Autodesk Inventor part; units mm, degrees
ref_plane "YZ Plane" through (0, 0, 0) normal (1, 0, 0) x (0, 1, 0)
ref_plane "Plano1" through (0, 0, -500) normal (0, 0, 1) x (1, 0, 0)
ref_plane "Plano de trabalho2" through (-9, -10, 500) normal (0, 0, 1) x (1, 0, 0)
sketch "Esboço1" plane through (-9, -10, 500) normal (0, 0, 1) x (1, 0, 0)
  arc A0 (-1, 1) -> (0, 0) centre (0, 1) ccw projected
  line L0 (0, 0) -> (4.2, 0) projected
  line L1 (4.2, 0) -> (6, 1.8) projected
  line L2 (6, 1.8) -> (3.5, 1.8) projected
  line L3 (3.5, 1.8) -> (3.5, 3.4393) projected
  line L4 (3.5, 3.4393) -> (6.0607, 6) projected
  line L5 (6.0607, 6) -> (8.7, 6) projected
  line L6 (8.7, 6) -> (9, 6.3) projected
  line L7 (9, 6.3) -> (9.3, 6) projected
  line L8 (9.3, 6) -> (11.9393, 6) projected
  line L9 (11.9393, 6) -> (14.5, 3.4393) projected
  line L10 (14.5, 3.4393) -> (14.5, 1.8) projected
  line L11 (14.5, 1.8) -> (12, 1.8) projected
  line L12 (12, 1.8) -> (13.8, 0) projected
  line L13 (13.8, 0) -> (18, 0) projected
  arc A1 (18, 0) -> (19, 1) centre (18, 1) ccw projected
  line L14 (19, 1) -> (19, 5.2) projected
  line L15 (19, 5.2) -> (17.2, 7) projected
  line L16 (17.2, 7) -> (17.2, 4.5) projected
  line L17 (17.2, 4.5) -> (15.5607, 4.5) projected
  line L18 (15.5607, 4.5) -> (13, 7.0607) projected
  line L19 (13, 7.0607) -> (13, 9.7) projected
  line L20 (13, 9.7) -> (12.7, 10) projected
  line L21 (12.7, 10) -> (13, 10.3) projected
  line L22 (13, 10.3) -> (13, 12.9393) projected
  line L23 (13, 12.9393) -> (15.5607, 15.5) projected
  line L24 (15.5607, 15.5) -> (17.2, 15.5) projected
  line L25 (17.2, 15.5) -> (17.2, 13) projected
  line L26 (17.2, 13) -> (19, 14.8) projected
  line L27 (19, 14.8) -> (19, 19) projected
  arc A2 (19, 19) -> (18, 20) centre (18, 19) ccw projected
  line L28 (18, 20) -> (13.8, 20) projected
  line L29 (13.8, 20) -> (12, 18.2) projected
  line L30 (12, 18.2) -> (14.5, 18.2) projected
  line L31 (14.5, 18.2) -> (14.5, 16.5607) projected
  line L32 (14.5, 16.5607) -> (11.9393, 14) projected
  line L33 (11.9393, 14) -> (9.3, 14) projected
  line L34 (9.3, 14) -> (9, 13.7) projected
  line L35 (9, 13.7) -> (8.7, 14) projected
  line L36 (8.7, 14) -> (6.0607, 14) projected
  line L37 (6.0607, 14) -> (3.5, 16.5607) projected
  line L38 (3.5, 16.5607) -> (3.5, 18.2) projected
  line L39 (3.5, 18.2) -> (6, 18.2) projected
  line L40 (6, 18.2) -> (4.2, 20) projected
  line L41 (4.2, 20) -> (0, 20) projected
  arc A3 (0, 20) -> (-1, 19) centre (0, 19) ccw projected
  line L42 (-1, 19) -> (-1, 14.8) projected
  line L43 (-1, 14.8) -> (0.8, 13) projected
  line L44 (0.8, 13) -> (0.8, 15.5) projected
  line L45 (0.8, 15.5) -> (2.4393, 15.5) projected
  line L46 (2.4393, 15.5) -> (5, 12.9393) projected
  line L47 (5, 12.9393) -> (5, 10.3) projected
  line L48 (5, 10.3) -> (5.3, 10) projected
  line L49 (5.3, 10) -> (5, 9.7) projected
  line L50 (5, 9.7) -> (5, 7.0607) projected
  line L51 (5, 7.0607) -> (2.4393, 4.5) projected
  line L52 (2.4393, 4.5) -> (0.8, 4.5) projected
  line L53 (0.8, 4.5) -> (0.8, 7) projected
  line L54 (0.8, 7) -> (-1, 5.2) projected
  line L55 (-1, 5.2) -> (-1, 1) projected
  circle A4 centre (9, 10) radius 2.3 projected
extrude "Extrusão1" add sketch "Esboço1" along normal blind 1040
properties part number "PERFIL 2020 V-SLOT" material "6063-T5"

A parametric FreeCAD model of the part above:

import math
import FreeCAD as App
import Part
import Sketcher
from FreeCAD import Vector
Q = App.Units.Quantity

doc = App.newDocument("Part")
params = doc.addObject("Spreadsheet::Sheet", "Params")
for row, (alias, value) in enumerate([
    ("sketch1_radius", "1 mm"),
    ("sketch1_diameter", "4.6 mm"),
    ("sketch1_width", "4.2 mm"),
    ("sketch1_width2", "2.5 mm"),
    ("pad1_length", "1040 mm"),
], start=1):
    params.set(f"A{row}", alias)
    params.set(f"B{row}", "=" + value)
    params.setAlias(f"B{row}", alias)

body = doc.addObject("PartDesign::Body", "Body")

# Sketch on XY plane
sketch1 = body.newObject("Sketcher::SketchObject", "Sketch")
sketch1.AttachmentSupport = (doc.getObject("XY_Plane"), [""])
sketch1.MapMode = "FlatFace"
sketch1.AttachmentOffset = App.Placement(Vector(0, 0, 500), App.Rotation())
sketch1.addGeometry([
    Part.LineSegment(Vector(-10, -4.8, 0), Vector(-10, -9, 0)),  # 0
    Part.ArcOfCircle(Part.Circle(Vector(-9, -9, 0), Vector(0, 0, 1), 1), math.radians(180), math.radians(270)),  # 1
    Part.LineSegment(Vector(-9, -10, 0), Vector(-4.8, -10, 0)),  # 2
    Part.LineSegment(Vector(-4.8, -10, 0), Vector(-3, -8.2, 0)),  # 3
    Part.LineSegment(Vector(-3, -8.2, 0), Vector(-5.5, -8.2, 0)),  # 4
    Part.LineSegment(Vector(-5.5, -8.2, 0), Vector(-5.5, -6.5607, 0)),  # 5
    Part.LineSegment(Vector(-5.5, -6.5607, 0), Vector(-2.9393, -4, 0)),  # 6
    Part.LineSegment(Vector(-2.9393, -4, 0), Vector(-0.3, -4, 0)),  # 7
    Part.LineSegment(Vector(-0.3, -4, 0), Vector(0, -3.7, 0)),  # 8
    Part.LineSegment(Vector(0, -3.7, 0), Vector(0.3, -4, 0)),  # 9
    Part.LineSegment(Vector(0.3, -4, 0), Vector(2.9393, -4, 0)),  # 10
    Part.LineSegment(Vector(2.9393, -4, 0), Vector(5.5, -6.5607, 0)),  # 11
    Part.LineSegment(Vector(5.5, -6.5607, 0), Vector(5.5, -8.2, 0)),  # 12
    Part.LineSegment(Vector(5.5, -8.2, 0), Vector(3, -8.2, 0)),  # 13
    Part.LineSegment(Vector(3, -8.2, 0), Vector(4.8, -10, 0)),  # 14
    Part.LineSegment(Vector(4.8, -10, 0), Vector(9, -10, 0)),  # 15
    Part.ArcOfCircle(Part.Circle(Vector(9, -9, 0), Vector(0, 0, 1), 1), math.radians(-90), math.radians(0)),  # 16
    Part.LineSegment(Vector(10, -9, 0), Vector(10, -4.8, 0)),  # 17
    Part.LineSegment(Vector(10, -4.8, 0), Vector(8.2, -3, 0)),  # 18
    Part.LineSegment(Vector(8.2, -3, 0), Vector(8.2, -5.5, 0)),  # 19
    Part.LineSegment(Vector(8.2, -5.5, 0), Vector(6.5607, -5.5, 0)),  # 20
    Part.LineSegment(Vector(6.5607, -5.5, 0), Vector(4, -2.9393, 0)),  # 21
    Part.LineSegment(Vector(4, -2.9393, 0), Vector(4, -0.3, 0)),  # 22
    Part.LineSegment(Vector(4, -0.3, 0), Vector(3.7, 0, 0)),  # 23
    Part.LineSegment(Vector(3.7, 0, 0), Vector(4, 0.3, 0)),  # 24
    Part.LineSegment(Vector(4, 0.3, 0), Vector(4, 2.9393, 0)),  # 25
    Part.LineSegment(Vector(4, 2.9393, 0), Vector(6.5607, 5.5, 0)),  # 26
    Part.LineSegment(Vector(6.5607, 5.5, 0), Vector(8.2, 5.5, 0)),  # 27
    Part.LineSegment(Vector(8.2, 5.5, 0), Vector(8.2, 3, 0)),  # 28
    Part.LineSegment(Vector(8.2, 3, 0), Vector(10, 4.8, 0)),  # 29
    Part.LineSegment(Vector(10, 4.8, 0), Vector(10, 9, 0)),  # 30
    Part.ArcOfCircle(Part.Circle(Vector(9, 9, 0), Vector(0, 0, 1), 1), math.radians(0), math.radians(90)),  # 31
    Part.LineSegment(Vector(9, 10, 0), Vector(4.8, 10, 0)),  # 32
    Part.LineSegment(Vector(4.8, 10, 0), Vector(3, 8.2, 0)),  # 33
    Part.LineSegment(Vector(3, 8.2, 0), Vector(5.5, 8.2, 0)),  # 34
    Part.LineSegment(Vector(5.5, 8.2, 0), Vector(5.5, 6.5607, 0)),  # 35
    Part.LineSegment(Vector(5.5, 6.5607, 0), Vector(2.9393, 4, 0)),  # 36
    Part.LineSegment(Vector(2.9393, 4, 0), Vector(0.3, 4, 0)),  # 37
    Part.LineSegment(Vector(0.3, 4, 0), Vector(0, 3.7, 0)),  # 38
    Part.LineSegment(Vector(0, 3.7, 0), Vector(-0.3, 4, 0)),  # 39
    Part.LineSegment(Vector(-0.3, 4, 0), Vector(-2.9393, 4, 0)),  # 40
    Part.LineSegment(Vector(-2.9393, 4, 0), Vector(-5.5, 6.5607, 0)),  # 41
    Part.LineSegment(Vector(-5.5, 6.5607, 0), Vector(-5.5, 8.2, 0)),  # 42
    Part.LineSegment(Vector(-5.5, 8.2, 0), Vector(-3, 8.2, 0)),  # 43
    Part.LineSegment(Vector(-3, 8.2, 0), Vector(-4.8, 10, 0)),  # 44
    Part.LineSegment(Vector(-4.8, 10, 0), Vector(-9, 10, 0)),  # 45
    Part.ArcOfCircle(Part.Circle(Vector(-9, 9, 0), Vector(0, 0, 1), 1), math.radians(90), math.radians(180)),  # 46
    Part.LineSegment(Vector(-10, 9, 0), Vector(-10, 4.8, 0)),  # 47
    Part.LineSegment(Vector(-10, 4.8, 0), Vector(-8.2, 3, 0)),  # 48
    Part.LineSegment(Vector(-8.2, 3, 0), Vector(-8.2, 5.5, 0)),  # 49
    Part.LineSegment(Vector(-8.2, 5.5, 0), Vector(-6.5607, 5.5, 0)),  # 50
    Part.LineSegment(Vector(-6.5607, 5.5, 0), Vector(-4, 2.9393, 0)),  # 51
    Part.LineSegment(Vector(-4, 2.9393, 0), Vector(-4, 0.3, 0)),  # 52
    Part.LineSegment(Vector(-4, 0.3, 0), Vector(-3.7, 0, 0)),  # 53
    Part.LineSegment(Vector(-3.7, 0, 0), Vector(-4, -0.3, 0)),  # 54
    Part.LineSegment(Vector(-4, -0.3, 0), Vector(-4, -2.9393, 0)),  # 55
    Part.LineSegment(Vector(-4, -2.9393, 0), Vector(-6.5607, -5.5, 0)),  # 56
    Part.LineSegment(Vector(-6.5607, -5.5, 0), Vector(-8.2, -5.5, 0)),  # 57
    Part.LineSegment(Vector(-8.2, -5.5, 0), Vector(-8.2, -3, 0)),  # 58
    Part.LineSegment(Vector(-8.2, -3, 0), Vector(-10, -4.8, 0)),  # 59
    Part.Circle(Vector(0, 0, 0), Vector(0, 0, 1), 2.3),  # 60
], False)
sketch1.addConstraint([
    Sketcher.Constraint("Tangent", 0, 2, 1, 1),
    Sketcher.Constraint("Tangent", 1, 2, 2, 1),
    Sketcher.Constraint("Coincident", 2, 2, 3, 1),
    Sketcher.Constraint("Coincident", 3, 2, 4, 1),
    Sketcher.Constraint("Coincident", 4, 2, 5, 1),
    Sketcher.Constraint("Coincident", 5, 2, 6, 1),
    Sketcher.Constraint("Coincident", 6, 2, 7, 1),
    Sketcher.Constraint("Coincident", 7, 2, 8, 1),
    Sketcher.Constraint("Coincident", 8, 2, 9, 1),
    Sketcher.Constraint("Coincident", 9, 2, 10, 1),
    Sketcher.Constraint("Coincident", 10, 2, 11, 1),
    Sketcher.Constraint("Coincident", 11, 2, 12, 1),
    Sketcher.Constraint("Coincident", 12, 2, 13, 1),
    Sketcher.Constraint("Coincident", 13, 2, 14, 1),
    Sketcher.Constraint("Coincident", 14, 2, 15, 1),
    Sketcher.Constraint("Tangent", 15, 2, 16, 1),
    Sketcher.Constraint("Tangent", 16, 2, 17, 1),
    Sketcher.Constraint("Coincident", 17, 2, 18, 1),
    Sketcher.Constraint("Coincident", 18, 2, 19, 1),
    Sketcher.Constraint("Coincident", 19, 2, 20, 1),
    Sketcher.Constraint("Coincident", 20, 2, 21, 1),
    Sketcher.Constraint("Coincident", 21, 2, 22, 1),
    Sketcher.Constraint("Coincident", 22, 2, 23, 1),
    Sketcher.Constraint("Coincident", 23, 2, 24, 1),
    Sketcher.Constraint("Coincident", 24, 2, 25, 1),
    Sketcher.Constraint("Coincident", 25, 2, 26, 1),
    Sketcher.Constraint("Coincident", 26, 2, 27, 1),
    Sketcher.Constraint("Coincident", 27, 2, 28, 1),
    Sketcher.Constraint("Coincident", 28, 2, 29, 1),
    Sketcher.Constraint("Coincident", 29, 2, 30, 1),
    Sketcher.Constraint("Tangent", 30, 2, 31, 1),
    Sketcher.Constraint("Tangent", 31, 2, 32, 1),
    Sketcher.Constraint("Coincident", 32, 2, 33, 1),
    Sketcher.Constraint("Coincident", 33, 2, 34, 1),
    Sketcher.Constraint("Coincident", 34, 2, 35, 1),
    Sketcher.Constraint("Coincident", 35, 2, 36, 1),
    Sketcher.Constraint("Coincident", 36, 2, 37, 1),
    Sketcher.Constraint("Coincident", 37, 2, 38, 1),
    Sketcher.Constraint("Coincident", 38, 2, 39, 1),
    Sketcher.Constraint("Coincident", 39, 2, 40, 1),
    Sketcher.Constraint("Coincident", 40, 2, 41, 1),
    Sketcher.Constraint("Coincident", 41, 2, 42, 1),
    Sketcher.Constraint("Coincident", 42, 2, 43, 1),
    Sketcher.Constraint("Coincident", 43, 2, 44, 1),
    Sketcher.Constraint("Coincident", 44, 2, 45, 1),
    Sketcher.Constraint("Tangent", 45, 2, 46, 1),
    Sketcher.Constraint("Tangent", 46, 2, 47, 1),
    Sketcher.Constraint("Coincident", 47, 2, 48, 1),
    Sketcher.Constraint("Coincident", 48, 2, 49, 1),
    Sketcher.Constraint("Coincident", 49, 2, 50, 1),
    Sketcher.Constraint("Coincident", 50, 2, 51, 1),
    Sketcher.Constraint("Coincident", 51, 2, 52, 1),
    Sketcher.Constraint("Coincident", 52, 2, 53, 1),
    Sketcher.Constraint("Coincident", 53, 2, 54, 1),
    Sketcher.Constraint("Coincident", 54, 2, 55, 1),
    Sketcher.Constraint("Coincident", 55, 2, 56, 1),
    Sketcher.Constraint("Coincident", 56, 2, 57, 1),
    Sketcher.Constraint("Coincident", 57, 2, 58, 1),
    Sketcher.Constraint("Coincident", 58, 2, 59, 1),
    Sketcher.Constraint("Coincident", 59, 2, 0, 1),
    Sketcher.Constraint("Vertical", 0),
    Sketcher.Constraint("Horizontal", 2),
    Sketcher.Constraint("Horizontal", 4),
    Sketcher.Constraint("Vertical", 5),
    Sketcher.Constraint("Horizontal", 7),
    Sketcher.Constraint("Horizontal", 10),
    Sketcher.Constraint("Vertical", 12),
    Sketcher.Constraint("Horizontal", 13),
    Sketcher.Constraint("Horizontal", 15),
    Sketcher.Constraint("Vertical", 17),
    Sketcher.Constraint("Vertical", 19),
    Sketcher.Constraint("Horizontal", 20),
    Sketcher.Constraint("Vertical", 22),
    Sketcher.Constraint("Vertical", 25),
    Sketcher.Constraint("Horizontal", 27),
    Sketcher.Constraint("Vertical", 28),
    Sketcher.Constraint("Vertical", 30),
    Sketcher.Constraint("Horizontal", 32),
    Sketcher.Constraint("Horizontal", 34),
    Sketcher.Constraint("Vertical", 35),
    Sketcher.Constraint("Horizontal", 37),
    Sketcher.Constraint("Horizontal", 40),
    Sketcher.Constraint("Vertical", 42),
    Sketcher.Constraint("Horizontal", 43),
    Sketcher.Constraint("Horizontal", 45),
    Sketcher.Constraint("Vertical", 47),
    Sketcher.Constraint("Vertical", 49),
    Sketcher.Constraint("Horizontal", 50),
    Sketcher.Constraint("Vertical", 52),
    Sketcher.Constraint("Vertical", 55),
    Sketcher.Constraint("Horizontal", 57),
    Sketcher.Constraint("Vertical", 58),
    Sketcher.Constraint("Coincident", 60, 3, -1, 1),
    Sketcher.Constraint("Equal", 1, 16),
    Sketcher.Constraint("Equal", 16, 31),
    Sketcher.Constraint("Equal", 31, 46),
    Sketcher.Constraint("Symmetric", 1, 3, 31, 3, -1, 1),
    Sketcher.Constraint("Symmetric", 16, 3, 46, 3, -1, 1),
    Sketcher.Constraint("Symmetric", 3, 2, 33, 2, -1, 1),
    Sketcher.Constraint("Symmetric", 5, 2, 35, 2, -1, 1),
    Sketcher.Constraint("Symmetric", 6, 2, 36, 2, -1, 1),
    Sketcher.Constraint("Symmetric", 8, 2, 38, 2, -1, 1),
    Sketcher.Constraint("Symmetric", 9, 2, 39, 2, -1, 1),
    Sketcher.Constraint("Symmetric", 11, 2, 41, 2, -1, 1),
    Sketcher.Constraint("Symmetric", 13, 2, 43, 2, -1, 1),
    Sketcher.Constraint("Symmetric", 18, 2, 48, 2, -1, 1),
    Sketcher.Constraint("Symmetric", 20, 2, 50, 2, -1, 1),
    Sketcher.Constraint("Symmetric", 21, 2, 51, 2, -1, 1),
    Sketcher.Constraint("Symmetric", 23, 2, 53, 2, -1, 1),
    Sketcher.Constraint("Symmetric", 24, 2, 54, 2, -1, 1),
    Sketcher.Constraint("Symmetric", 26, 2, 56, 2, -1, 1),
    Sketcher.Constraint("Symmetric", 28, 2, 58, 2, -1, 1),
    Sketcher.Constraint("Symmetric", 1, 3, 16, 3, -2),
    Sketcher.Constraint("Symmetric", 7, 2, 9, 2, -2),
    Sketcher.Constraint("Symmetric", 5, 2, 11, 2, -2),
    Sketcher.Constraint("Symmetric", 3, 2, 13, 2, -2),
    Sketcher.Constraint("Symmetric", 28, 2, 48, 2, -2),
    Sketcher.Constraint("Symmetric", 26, 2, 50, 2, -2),
    Sketcher.Constraint("Symmetric", 25, 2, 51, 2, -2),
    Sketcher.Constraint("PointOnObject", 8, 2, -2),
    Sketcher.Constraint("PointOnObject", 23, 2, -1),
    Sketcher.Constraint("Parallel", 3, 6),
    Sketcher.Constraint("Parallel", 6, 8),
    Sketcher.Constraint("Perpendicular", 8, 9),
    Sketcher.Constraint("Parallel", 9, 11),
    Sketcher.Constraint("Parallel", 11, 14),
    Sketcher.Constraint("Parallel", 14, 18),
    Sketcher.Constraint("Parallel", 18, 21),
    Sketcher.Constraint("Parallel", 21, 23),
    Sketcher.Constraint("Perpendicular", 23, 24),
    Sketcher.Constraint("Parallel", 26, 29),
    Sketcher.Constraint("Parallel", 29, 33),
    Sketcher.Constraint("Parallel", 36, 38),
    Sketcher.Constraint("Parallel", 39, 41),
    Sketcher.Constraint("Parallel", 41, 44),
    Sketcher.Constraint("Parallel", 44, 48),
    Sketcher.Constraint("Parallel", 51, 53),
    Sketcher.Constraint("Parallel", 54, 56),
    Sketcher.Constraint("Parallel", 56, 59),
    Sketcher.Constraint("Equal", 45, 0),
    Sketcher.Constraint("Equal", 57, 5),
    Sketcher.Constraint("Equal", 43, 19),
    Sketcher.Constraint("Equal", 40, 22),
    Sketcher.Constraint("Equal", 14, 18),
    Sketcher.Constraint("Equal", 11, 21),
    Sketcher.Constraint("Equal", 9, 23),
    Sketcher.Constraint("Radius", 1, Q("1 mm")),
    Sketcher.Constraint("Diameter", 60, Q("4.6 mm")),
    Sketcher.Constraint("DistanceX", 2, 1, 2, 2, Q("4.2 mm")),
    Sketcher.Constraint("DistanceX", 4, 2, 4, 1, Q("2.5 mm")),
    Sketcher.Constraint("DistanceX", 1, 3, -1, 1, Q("9 mm")),
    Sketcher.Constraint("DistanceX", 3, 2, -1, 1, Q("3 mm")),
    Sketcher.Constraint("DistanceY", 6, 2, -1, 1, Q("4 mm")),
    Sketcher.Constraint("DistanceX", 7, 2, -1, 1, Q("0.3 mm")),
    Sketcher.Constraint("DistanceX", 7, 1, 7, 2, Q("2.6393 mm")),
])
sketch1.setExpression("Constraints[146]", "Params.sketch1_radius")
sketch1.setExpression("Constraints[147]", "Params.sketch1_diameter")
sketch1.setExpression("Constraints[148]", "Params.sketch1_width")
sketch1.setExpression("Constraints[149]", "Params.sketch1_width2")
pad1 = body.newObject("PartDesign::Pad", "Pad")
pad1.Profile = sketch1
pad1.setExpression("Length", "Params.pad1_length")

doc.recompute()
